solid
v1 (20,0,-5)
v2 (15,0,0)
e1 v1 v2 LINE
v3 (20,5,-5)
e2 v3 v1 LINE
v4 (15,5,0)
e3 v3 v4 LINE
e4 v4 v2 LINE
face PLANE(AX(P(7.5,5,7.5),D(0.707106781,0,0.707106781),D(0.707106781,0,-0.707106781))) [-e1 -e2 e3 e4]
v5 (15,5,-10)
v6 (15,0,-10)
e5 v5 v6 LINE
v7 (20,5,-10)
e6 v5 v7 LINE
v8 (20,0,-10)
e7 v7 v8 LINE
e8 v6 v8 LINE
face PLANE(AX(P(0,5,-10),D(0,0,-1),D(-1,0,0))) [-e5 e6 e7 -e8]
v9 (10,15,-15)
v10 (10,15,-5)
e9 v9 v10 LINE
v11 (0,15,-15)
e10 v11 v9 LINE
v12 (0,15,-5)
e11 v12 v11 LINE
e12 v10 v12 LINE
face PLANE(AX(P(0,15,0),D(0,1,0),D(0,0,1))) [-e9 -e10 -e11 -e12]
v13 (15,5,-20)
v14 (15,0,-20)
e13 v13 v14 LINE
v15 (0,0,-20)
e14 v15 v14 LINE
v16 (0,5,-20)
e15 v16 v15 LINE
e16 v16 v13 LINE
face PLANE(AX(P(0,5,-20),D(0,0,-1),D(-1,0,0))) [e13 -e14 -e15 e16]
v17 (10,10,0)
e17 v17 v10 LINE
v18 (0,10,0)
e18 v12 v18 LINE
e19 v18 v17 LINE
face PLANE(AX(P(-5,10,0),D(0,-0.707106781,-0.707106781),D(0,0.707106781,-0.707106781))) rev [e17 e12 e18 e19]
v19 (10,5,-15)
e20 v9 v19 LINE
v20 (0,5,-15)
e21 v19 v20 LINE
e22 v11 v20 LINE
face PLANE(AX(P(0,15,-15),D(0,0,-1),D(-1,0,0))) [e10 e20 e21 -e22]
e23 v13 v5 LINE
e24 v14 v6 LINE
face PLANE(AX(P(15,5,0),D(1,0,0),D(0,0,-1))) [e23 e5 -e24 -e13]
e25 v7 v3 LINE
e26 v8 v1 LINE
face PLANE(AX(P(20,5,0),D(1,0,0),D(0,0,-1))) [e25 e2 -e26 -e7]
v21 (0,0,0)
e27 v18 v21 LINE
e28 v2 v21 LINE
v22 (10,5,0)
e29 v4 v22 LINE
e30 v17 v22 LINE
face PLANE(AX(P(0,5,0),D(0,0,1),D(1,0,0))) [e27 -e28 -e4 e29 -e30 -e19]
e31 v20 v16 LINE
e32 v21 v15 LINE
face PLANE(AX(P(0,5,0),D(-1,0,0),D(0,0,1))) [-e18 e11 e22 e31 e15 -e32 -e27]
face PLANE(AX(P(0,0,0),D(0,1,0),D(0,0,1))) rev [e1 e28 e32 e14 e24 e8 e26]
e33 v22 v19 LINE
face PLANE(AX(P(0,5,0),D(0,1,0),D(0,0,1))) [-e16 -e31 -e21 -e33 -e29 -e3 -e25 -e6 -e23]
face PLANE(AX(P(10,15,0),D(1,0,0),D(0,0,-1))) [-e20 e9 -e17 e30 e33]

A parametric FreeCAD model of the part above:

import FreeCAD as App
import Part
import Sketcher

V = App.Vector

doc = App.newDocument("Part")
body = doc.addObject("PartDesign::Body", "Body")

sketch1 = doc.addObject("Sketcher::SketchObject", "Sketch")
body.addObject(sketch1)
sketch1.AttachmentSupport = (doc.XZ_Plane, [""])
sketch1.MapMode = "FlatFace"
sketch1.addGeometry(Part.LineSegment(V(15, 0, 0), V(20, -5, 0)), False)
sketch1.addGeometry(Part.LineSegment(V(20, -5, 0), V(20, -10, 0)), False)
sketch1.addGeometry(Part.LineSegment(V(20, -10, 0), V(15, -10, 0)), False)
sketch1.addGeometry(Part.LineSegment(V(15, -10, 0), V(15, -20, 0)), False)
sketch1.addGeometry(Part.LineSegment(V(15, -20, 0), V(0, -20, 0)), False)
sketch1.addGeometry(Part.LineSegment(V(0, -20, 0), V(0, 0, 0)), False)
sketch1.addGeometry(Part.LineSegment(V(0, 0, 0), V(15, 0, 0)), False)
sketch1.addConstraint(Sketcher.Constraint("Coincident", 0, 2, 1, 1))
sketch1.addConstraint(Sketcher.Constraint("Coincident", 1, 2, 2, 1))
sketch1.addConstraint(Sketcher.Constraint("Coincident", 2, 2, 3, 1))
sketch1.addConstraint(Sketcher.Constraint("Coincident", 3, 2, 4, 1))
sketch1.addConstraint(Sketcher.Constraint("Coincident", 4, 2, 5, 1))
sketch1.addConstraint(Sketcher.Constraint("Coincident", 5, 2, 6, 1))
sketch1.addConstraint(Sketcher.Constraint("Coincident", 6, 2, 0, 1))
sketch1.addConstraint(Sketcher.Constraint("Vertical", 1))
sketch1.addConstraint(Sketcher.Constraint("Horizontal", 2))
sketch1.addConstraint(Sketcher.Constraint("Vertical", 3))
sketch1.addConstraint(Sketcher.Constraint("Horizontal", 4))
sketch1.addConstraint(Sketcher.Constraint("Vertical", 5))
sketch1.addConstraint(Sketcher.Constraint("Horizontal", 6))
sketch1.addConstraint(Sketcher.Constraint("Coincident", 5, 2, -1, 1))
sketch1.addConstraint(Sketcher.Constraint("Vertical", 3, 2, 6, 2))
sketch1.addConstraint(Sketcher.Constraint("Equal", 2, 1))
sketch1.addConstraint(Sketcher.Constraint("DistanceX", 2, 2, 2, 1, 5.0))
sketch1.addConstraint(Sketcher.Constraint("DistanceX", 4, 2, 4, 1, 15.0))
sketch1.addConstraint(Sketcher.Constraint("DistanceY", 3, 2, 3, 1, 10.0))
sketch1.addConstraint(Sketcher.Constraint("DistanceY", 5, 1, 5, 2, 20.0))
pad1 = doc.addObject("PartDesign::Pad", "Pad")
body.addObject(pad1)
pad1.Profile = sketch1
pad1.Length = 5
pad1.Reversed = True

sketch2 = doc.addObject("Sketcher::SketchObject", "Sketch001")
body.addObject(sketch2)
sketch2.AttachmentSupport = (doc.XZ_Plane, [""])
sketch2.MapMode = "FlatFace"
sketch2.addGeometry(Part.LineSegment(V(0, -15, 0), V(0, 0, 0)), False)
sketch2.addGeometry(Part.LineSegment(V(0, 0, 0), V(10, 0, 0)), False)
sketch2.addGeometry(Part.LineSegment(V(10, 0, 0), V(10, -15, 0)), False)
sketch2.addGeometry(Part.LineSegment(V(10, -15, 0), V(0, -15, 0)), False)
sketch2.addConstraint(Sketcher.Constraint("Coincident", 0, 2, 1, 1))
sketch2.addConstraint(Sketcher.Constraint("Coincident", 1, 2, 2, 1))
sketch2.addConstraint(Sketcher.Constraint("Coincident", 2, 2, 3, 1))
sketch2.addConstraint(Sketcher.Constraint("Coincident", 3, 2, 0, 1))
sketch2.addConstraint(Sketcher.Constraint("Vertical", 0))
sketch2.addConstraint(Sketcher.Constraint("Horizontal", 1))
sketch2.addConstraint(Sketcher.Constraint("Vertical", 2))
sketch2.addConstraint(Sketcher.Constraint("Horizontal", 3))
sketch2.addConstraint(Sketcher.Constraint("Coincident", 0, 2, -1, 1))
sketch2.addConstraint(Sketcher.Constraint("DistanceX", 1, 1, 1, 2, 10.0))
sketch2.addConstraint(Sketcher.Constraint("DistanceY", 0, 1, 0, 2, 15.0))
pad2 = doc.addObject("PartDesign::Pad", "Pad001")
body.addObject(pad2)
pad2.Profile = sketch2
pad2.Length = 15
pad2.Reversed = True

sketch3 = doc.addObject("Sketcher::SketchObject", "Sketch002")
body.addObject(sketch3)
sketch3.AttachmentSupport = (doc.YZ_Plane, [""])
sketch3.MapMode = "FlatFace"
sketch3.AttachmentOffset = App.Placement(V(0, 0, 10), App.Rotation())
sketch3.addGeometry(Part.LineSegment(V(15, 0, 0), V(10, 0, 0)), False)
sketch3.addGeometry(Part.LineSegment(V(10, 0, 0), V(15, -5, 0)), False)
sketch3.addGeometry(Part.LineSegment(V(15, -5, 0), V(15, 0, 0)), False)
sketch3.addConstraint(Sketcher.Constraint("Coincident", 0, 2, 1, 1))
sketch3.addConstraint(Sketcher.Constraint("Coincident", 1, 2, 2, 1))
sketch3.addConstraint(Sketcher.Constraint("Coincident", 2, 2, 0, 1))
sketch3.addConstraint(Sketcher.Constraint("Horizontal", 0))
sketch3.addConstraint(Sketcher.Constraint("Vertical", 2))
sketch3.addConstraint(Sketcher.Constraint("PointOnObject", 0, 2, -1))
sketch3.addConstraint(Sketcher.Constraint("Equal", 0, 2))
sketch3.addConstraint(Sketcher.Constraint("DistanceX", 0, 2, 0, 1, 5.0))
sketch3.addConstraint(Sketcher.Constraint("DistanceX", -1, 1, 0, 2, 10.0))
pocket1 = doc.addObject("PartDesign::Pocket", "Pocket")
body.addObject(pocket1)
pocket1.Profile = sketch3
pocket1.Length = 15

doc.recompute()
